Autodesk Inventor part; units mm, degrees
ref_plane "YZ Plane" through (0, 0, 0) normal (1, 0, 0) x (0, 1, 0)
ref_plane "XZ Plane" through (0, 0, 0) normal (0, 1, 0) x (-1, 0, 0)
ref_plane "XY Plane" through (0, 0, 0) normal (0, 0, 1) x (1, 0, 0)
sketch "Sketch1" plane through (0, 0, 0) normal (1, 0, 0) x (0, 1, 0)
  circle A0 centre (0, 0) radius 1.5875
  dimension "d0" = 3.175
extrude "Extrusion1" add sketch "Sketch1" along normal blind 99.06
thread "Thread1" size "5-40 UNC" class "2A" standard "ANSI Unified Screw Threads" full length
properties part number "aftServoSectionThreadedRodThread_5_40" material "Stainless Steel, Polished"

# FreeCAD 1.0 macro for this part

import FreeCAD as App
import Part
import Sketcher
from FreeCAD import Vector
Q = App.Units.Quantity

doc = App.newDocument("Part")
body = doc.addObject("PartDesign::Body", "Body")

sketch1 = body.newObject("Sketcher::SketchObject", "Sketch")
sketch1.AttachmentSupport = (doc.getObject("YZ_Plane"), [""])
sketch1.MapMode = "FlatFace"
sketch1.addGeometry(Part.Circle(Vector(0, 0, 0), Vector(0, 0, 1), 1.6), False)
sketch1.addConstraint([
    Sketcher.Constraint("Coincident", 0, 3, -1, 1),
    Sketcher.Constraint("Diameter", 0, Q("0.125 in")),
])
pad1 = body.newObject("PartDesign::Pad", "Pad")
pad1.Profile = sketch1
pad1.Length = Q("3.9 in")

doc.recompute()
